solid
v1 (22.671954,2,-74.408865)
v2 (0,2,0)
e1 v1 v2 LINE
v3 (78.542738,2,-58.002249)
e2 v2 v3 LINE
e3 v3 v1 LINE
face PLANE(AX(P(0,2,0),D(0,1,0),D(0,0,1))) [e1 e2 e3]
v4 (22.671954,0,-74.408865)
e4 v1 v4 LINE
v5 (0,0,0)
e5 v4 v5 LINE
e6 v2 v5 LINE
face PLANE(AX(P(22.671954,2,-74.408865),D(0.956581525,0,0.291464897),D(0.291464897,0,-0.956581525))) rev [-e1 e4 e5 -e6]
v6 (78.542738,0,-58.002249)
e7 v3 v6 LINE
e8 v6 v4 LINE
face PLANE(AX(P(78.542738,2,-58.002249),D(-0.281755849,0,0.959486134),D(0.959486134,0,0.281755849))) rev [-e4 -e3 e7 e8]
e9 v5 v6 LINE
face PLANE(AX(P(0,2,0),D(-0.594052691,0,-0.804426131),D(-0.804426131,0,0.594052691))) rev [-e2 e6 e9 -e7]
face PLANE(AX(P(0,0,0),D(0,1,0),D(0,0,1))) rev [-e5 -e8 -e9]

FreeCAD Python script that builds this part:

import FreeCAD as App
import Part
import Sketcher

V = App.Vector
Q = App.Units.Quantity

doc = App.newDocument("Part")
body = doc.addObject("PartDesign::Body", "Body")

# Sketch on XZ plane
sketch1 = doc.addObject("Sketcher::SketchObject", "Sketch")
body.addObject(sketch1)
sketch1.AttachmentSupport = (doc.XZ_Plane, [""])
sketch1.MapMode = "FlatFace"
sketch1.addGeometry(Part.LineSegment(V(23, -74, 0), V(0, 0, 0)), False)
sketch1.addGeometry(Part.LineSegment(V(0, 0, 0), V(79, -58, 0)), False)
sketch1.addGeometry(Part.LineSegment(V(79, -58, 0), V(23, -74, 0)), False)
sketch1.addConstraint(Sketcher.Constraint("Coincident", 0, 2, 1, 1))
sketch1.addConstraint(Sketcher.Constraint("Coincident", 1, 2, 2, 1))
sketch1.addConstraint(Sketcher.Constraint("Coincident", 2, 2, 0, 1))
sketch1.addConstraint(Sketcher.Constraint("Coincident", 0, 2, -1, 1))
sketch1.addConstraint(Sketcher.Constraint("DistanceX", -1, 1, 1, 2, Q("78.542738 mm")))
sketch1.addConstraint(Sketcher.Constraint("DistanceY", 1, 2, -1, 1, Q("58.002249 mm")))
sketch1.addConstraint(Sketcher.Constraint("Distance", 0, Q("77.786224 mm")))
sketch1.addConstraint(Sketcher.Constraint("Distance", 2, Q("58.229903 mm")))
pad1 = doc.addObject("PartDesign::Pad", "Pad")
body.addObject(pad1)
pad1.Profile = sketch1
pad1.Length = 2
pad1.Reversed = True

doc.recompute()
